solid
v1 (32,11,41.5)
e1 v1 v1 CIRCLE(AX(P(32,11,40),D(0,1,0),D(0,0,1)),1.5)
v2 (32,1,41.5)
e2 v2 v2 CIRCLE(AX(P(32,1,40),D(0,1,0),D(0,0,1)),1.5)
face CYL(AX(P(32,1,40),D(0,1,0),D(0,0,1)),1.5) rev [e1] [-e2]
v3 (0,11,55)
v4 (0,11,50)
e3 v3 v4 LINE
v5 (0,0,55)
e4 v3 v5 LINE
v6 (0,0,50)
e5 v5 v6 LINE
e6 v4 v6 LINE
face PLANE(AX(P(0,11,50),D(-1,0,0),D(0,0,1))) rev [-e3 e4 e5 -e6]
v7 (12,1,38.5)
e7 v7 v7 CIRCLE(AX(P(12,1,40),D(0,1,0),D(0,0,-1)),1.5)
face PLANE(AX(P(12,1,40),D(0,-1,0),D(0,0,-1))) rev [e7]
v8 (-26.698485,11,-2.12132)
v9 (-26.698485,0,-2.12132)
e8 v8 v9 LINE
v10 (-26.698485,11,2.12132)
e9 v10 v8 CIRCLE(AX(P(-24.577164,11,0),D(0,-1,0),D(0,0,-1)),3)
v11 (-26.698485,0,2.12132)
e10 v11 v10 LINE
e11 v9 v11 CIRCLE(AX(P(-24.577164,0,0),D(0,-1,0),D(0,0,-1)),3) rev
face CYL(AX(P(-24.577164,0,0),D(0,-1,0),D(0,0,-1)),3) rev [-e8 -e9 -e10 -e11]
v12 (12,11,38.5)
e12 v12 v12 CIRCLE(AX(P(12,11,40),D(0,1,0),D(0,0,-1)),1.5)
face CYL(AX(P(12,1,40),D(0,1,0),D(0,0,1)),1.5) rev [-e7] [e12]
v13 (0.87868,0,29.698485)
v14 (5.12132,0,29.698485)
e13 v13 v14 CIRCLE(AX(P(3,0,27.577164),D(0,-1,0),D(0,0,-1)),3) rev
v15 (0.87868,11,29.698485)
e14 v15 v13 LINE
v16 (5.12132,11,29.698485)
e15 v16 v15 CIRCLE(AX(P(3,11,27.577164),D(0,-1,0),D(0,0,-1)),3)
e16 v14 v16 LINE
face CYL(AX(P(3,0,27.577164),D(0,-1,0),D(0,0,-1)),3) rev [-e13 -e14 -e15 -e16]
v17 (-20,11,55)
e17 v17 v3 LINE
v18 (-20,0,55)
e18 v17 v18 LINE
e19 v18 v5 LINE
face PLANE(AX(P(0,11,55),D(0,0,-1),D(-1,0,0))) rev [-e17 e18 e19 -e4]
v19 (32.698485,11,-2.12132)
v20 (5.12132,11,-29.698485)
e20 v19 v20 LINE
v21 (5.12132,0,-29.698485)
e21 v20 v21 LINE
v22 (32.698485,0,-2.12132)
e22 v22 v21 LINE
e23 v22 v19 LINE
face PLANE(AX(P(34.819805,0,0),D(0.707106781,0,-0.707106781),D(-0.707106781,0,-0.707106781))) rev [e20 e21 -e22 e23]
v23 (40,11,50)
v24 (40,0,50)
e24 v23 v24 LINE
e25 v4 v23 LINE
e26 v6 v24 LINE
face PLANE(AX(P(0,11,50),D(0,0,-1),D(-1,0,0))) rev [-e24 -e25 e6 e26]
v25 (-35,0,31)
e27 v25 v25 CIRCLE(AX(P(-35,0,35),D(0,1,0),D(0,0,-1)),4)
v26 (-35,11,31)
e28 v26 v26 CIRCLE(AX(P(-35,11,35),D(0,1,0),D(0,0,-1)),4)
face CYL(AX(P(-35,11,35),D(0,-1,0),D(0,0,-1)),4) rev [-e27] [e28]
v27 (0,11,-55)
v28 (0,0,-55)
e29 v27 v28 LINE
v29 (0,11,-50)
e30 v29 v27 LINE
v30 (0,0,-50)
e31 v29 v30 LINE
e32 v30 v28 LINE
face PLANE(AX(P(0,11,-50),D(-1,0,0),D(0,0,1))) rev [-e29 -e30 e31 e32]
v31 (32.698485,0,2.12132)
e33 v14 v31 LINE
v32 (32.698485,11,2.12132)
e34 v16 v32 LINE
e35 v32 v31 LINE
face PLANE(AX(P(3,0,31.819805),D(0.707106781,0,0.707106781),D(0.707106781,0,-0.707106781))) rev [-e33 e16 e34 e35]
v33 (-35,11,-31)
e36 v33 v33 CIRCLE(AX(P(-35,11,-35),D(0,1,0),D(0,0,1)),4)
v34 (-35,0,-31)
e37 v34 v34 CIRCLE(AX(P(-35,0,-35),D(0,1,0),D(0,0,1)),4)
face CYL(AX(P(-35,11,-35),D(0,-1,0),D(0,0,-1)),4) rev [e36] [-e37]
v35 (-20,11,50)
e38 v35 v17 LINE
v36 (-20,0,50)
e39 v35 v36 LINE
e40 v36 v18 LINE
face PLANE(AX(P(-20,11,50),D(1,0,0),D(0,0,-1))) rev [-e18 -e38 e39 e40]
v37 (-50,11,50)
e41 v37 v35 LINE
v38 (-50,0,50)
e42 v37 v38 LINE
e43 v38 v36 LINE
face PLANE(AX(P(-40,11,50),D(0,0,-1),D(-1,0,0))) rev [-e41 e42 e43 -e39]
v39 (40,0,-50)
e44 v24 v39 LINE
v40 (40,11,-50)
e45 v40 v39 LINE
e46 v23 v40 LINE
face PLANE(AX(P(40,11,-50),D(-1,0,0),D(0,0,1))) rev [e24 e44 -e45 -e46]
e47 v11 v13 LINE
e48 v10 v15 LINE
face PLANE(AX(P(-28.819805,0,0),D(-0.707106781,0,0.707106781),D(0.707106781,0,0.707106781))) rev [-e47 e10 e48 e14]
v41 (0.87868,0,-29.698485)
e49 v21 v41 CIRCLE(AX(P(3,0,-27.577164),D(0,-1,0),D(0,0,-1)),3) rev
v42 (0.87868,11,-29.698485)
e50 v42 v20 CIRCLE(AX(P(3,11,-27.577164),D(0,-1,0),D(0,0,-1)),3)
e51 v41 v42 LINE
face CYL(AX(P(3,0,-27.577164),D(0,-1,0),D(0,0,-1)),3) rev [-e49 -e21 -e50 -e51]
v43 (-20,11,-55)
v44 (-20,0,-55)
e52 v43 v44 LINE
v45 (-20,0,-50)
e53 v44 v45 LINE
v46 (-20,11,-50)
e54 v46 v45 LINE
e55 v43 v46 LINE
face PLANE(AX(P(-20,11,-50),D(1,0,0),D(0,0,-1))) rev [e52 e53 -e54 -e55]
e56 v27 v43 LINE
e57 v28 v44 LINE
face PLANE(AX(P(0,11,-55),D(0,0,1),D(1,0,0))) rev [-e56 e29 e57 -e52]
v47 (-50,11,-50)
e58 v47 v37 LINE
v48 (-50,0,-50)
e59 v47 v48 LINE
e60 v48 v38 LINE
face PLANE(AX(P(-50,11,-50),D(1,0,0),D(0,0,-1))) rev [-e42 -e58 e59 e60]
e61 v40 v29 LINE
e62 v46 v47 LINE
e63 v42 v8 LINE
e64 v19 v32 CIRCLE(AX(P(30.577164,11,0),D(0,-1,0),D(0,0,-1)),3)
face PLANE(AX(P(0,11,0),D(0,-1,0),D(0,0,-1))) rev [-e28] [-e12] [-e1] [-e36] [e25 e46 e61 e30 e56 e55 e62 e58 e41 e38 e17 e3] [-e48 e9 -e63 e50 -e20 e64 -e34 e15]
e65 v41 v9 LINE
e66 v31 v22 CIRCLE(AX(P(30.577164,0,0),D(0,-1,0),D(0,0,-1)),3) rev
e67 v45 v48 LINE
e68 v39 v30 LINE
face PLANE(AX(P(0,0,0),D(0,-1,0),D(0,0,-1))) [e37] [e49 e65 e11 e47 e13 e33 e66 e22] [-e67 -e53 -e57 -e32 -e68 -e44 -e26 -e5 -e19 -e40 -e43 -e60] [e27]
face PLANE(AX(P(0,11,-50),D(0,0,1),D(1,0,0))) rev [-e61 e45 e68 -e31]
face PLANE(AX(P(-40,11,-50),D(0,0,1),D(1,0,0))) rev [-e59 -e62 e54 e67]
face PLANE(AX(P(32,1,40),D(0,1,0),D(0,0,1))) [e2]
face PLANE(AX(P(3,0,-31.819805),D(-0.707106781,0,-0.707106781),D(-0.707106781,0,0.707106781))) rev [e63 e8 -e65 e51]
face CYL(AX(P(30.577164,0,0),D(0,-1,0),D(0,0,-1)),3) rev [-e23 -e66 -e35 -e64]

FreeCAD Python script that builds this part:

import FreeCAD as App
import Part
import Sketcher


def edges_at(feature, points):
    """Names of the edges that pass closest to the given points."""
    edges = feature.Shape.Edges
    near = lambda p: min(range(len(edges)), key=lambda i: edges[i].distToShape(Part.Vertex(*p))[0])
    return sorted({f"Edge{near(p) + 1}" for p in points})

doc = App.newDocument("Part")
params = doc.addObject("Spreadsheet::Sheet", "Params")
for row, (alias, value) in enumerate([
    ("sketch1_diameter", "8 mm"),
    ("sketch1_width", "40 mm"),
    ("sketch1_width2", "20 mm"),
    ("sketch1_width3", "30 mm"),
    ("sketch1_height", "5 mm"),
    ("pad1_length", "11 mm"),
    ("sketch2_diameter", "3 mm"),
    ("pocket1_length", "10 mm"),
    ("sketch3_length", "45 mm"),
    ("pocket2_length", "11 mm"),
    ("fillet_radius", "3 mm"),
], start=1):
    params.set(f"A{row}", alias)
    params.set(f"B{row}", "=" + value)
    params.setAlias(f"B{row}", alias)

body = doc.addObject("PartDesign::Body", "Body")

sketch1 = body.newObject("Sketcher::SketchObject", "Sketch")
sketch1.AttachmentSupport = (doc.getObject("XZ_Plane"), [""])
sketch1.MapMode = "FlatFace"
sketch1.addGeometry(Part.LineSegment(App.Vector(40, -50, 0), App.Vector(0, -50, 0)), False)
sketch1.addGeometry(Part.LineSegment(App.Vector(0, -50, 0), App.Vector(0, -55, 0)), False)
sketch1.addGeometry(Part.LineSegment(App.Vector(0, -55, 0), App.Vector(-20, -55, 0)), False)
sketch1.addGeometry(Part.LineSegment(App.Vector(-20, -55, 0), App.Vector(-20, -50, 0)), False)
sketch1.addGeometry(Part.LineSegment(App.Vector(-20, -50, 0), App.Vector(-50, -50, 0)), False)
sketch1.addGeometry(Part.LineSegment(App.Vector(-50, -50, 0), App.Vector(-50, 50, 0)), False)
sketch1.addGeometry(Part.LineSegment(App.Vector(-50, 50, 0), App.Vector(-20, 50, 0)), False)
sketch1.addGeometry(Part.LineSegment(App.Vector(-20, 50, 0), App.Vector(-20, 55, 0)), False)
sketch1.addGeometry(Part.LineSegment(App.Vector(-20, 55, 0), App.Vector(0, 55, 0)), False)
sketch1.addGeometry(Part.LineSegment(App.Vector(0, 55, 0), App.Vector(0, 50, 0)), False)
sketch1.addGeometry(Part.LineSegment(App.Vector(0, 50, 0), App.Vector(40, 50, 0)), False)
sketch1.addGeometry(Part.LineSegment(App.Vector(40, 50, 0), App.Vector(40, -50, 0)), False)
sketch1.addGeometry(Part.Circle(App.Vector(-35, 35, 0), App.Vector(0, 0, 1), 4), False)
sketch1.addGeometry(Part.Circle(App.Vector(-35, -35, 0), App.Vector(0, 0, 1), 4), False)
sketch1.addConstraint(Sketcher.Constraint("Coincident", 0, 2, 1, 1))
sketch1.addConstraint(Sketcher.Constraint("Coincident", 1, 2, 2, 1))
sketch1.addConstraint(Sketcher.Constraint("Coincident", 2, 2, 3, 1))
sketch1.addConstraint(Sketcher.Constraint("Coincident", 3, 2, 4, 1))
sketch1.addConstraint(Sketcher.Constraint("Coincident", 4, 2, 5, 1))
sketch1.addConstraint(Sketcher.Constraint("Coincident", 5, 2, 6, 1))
sketch1.addConstraint(Sketcher.Constraint("Coincident", 6, 2, 7, 1))
sketch1.addConstraint(Sketcher.Constraint("Coincident", 7, 2, 8, 1))
sketch1.addConstraint(Sketcher.Constraint("Coincident", 8, 2, 9, 1))
sketch1.addConstraint(Sketcher.Constraint("Coincident", 9, 2, 10, 1))
sketch1.addConstraint(Sketcher.Constraint("Coincident", 10, 2, 11, 1))
sketch1.addConstraint(Sketcher.Constraint("Coincident", 11, 2, 0, 1))
sketch1.addConstraint(Sketcher.Constraint("Horizontal", 0))
sketch1.addConstraint(Sketcher.Constraint("Vertical", 1))
sketch1.addConstraint(Sketcher.Constraint("Horizontal", 2))
sketch1.addConstraint(Sketcher.Constraint("Vertical", 3))
sketch1.addConstraint(Sketcher.Constraint("Horizontal", 4))
sketch1.addConstraint(Sketcher.Constraint("Vertical", 5))
sketch1.addConstraint(Sketcher.Constraint("Horizontal", 6))
sketch1.addConstraint(Sketcher.Constraint("Vertical", 7))
sketch1.addConstraint(Sketcher.Constraint("Horizontal", 8))
sketch1.addConstraint(Sketcher.Constraint("Vertical", 9))
sketch1.addConstraint(Sketcher.Constraint("Horizontal", 10))
sketch1.addConstraint(Sketcher.Constraint("Vertical", 11))
sketch1.addConstraint(Sketcher.Constraint("Equal", 12, 13))
sketch1.addConstraint(Sketcher.Constraint("Symmetric", 1, 2, 8, 2, -1, 1))
sketch1.addConstraint(Sketcher.Constraint("Symmetric", 12, 3, 13, 3, -1))
sketch1.addConstraint(Sketcher.Constraint("Symmetric", 3, 2, 6, 2, -1))
sketch1.addConstraint(Sketcher.Constraint("Symmetric", 0, 2, 9, 2, -1))
sketch1.addConstraint(Sketcher.Constraint("Horizontal", 0, 2, 3, 2))
sketch1.addConstraint(Sketcher.Constraint("Diameter", 12, 8.0))
sketch1.addConstraint(Sketcher.Constraint("DistanceX", 0, 2, 0, 1, 40.0))
sketch1.addConstraint(Sketcher.Constraint("DistanceX", 2, 2, 2, 1, 20.0))
sketch1.addConstraint(Sketcher.Constraint("DistanceX", 4, 2, 4, 1, 30.0))
sketch1.addConstraint(Sketcher.Constraint("DistanceY", 1, 2, 1, 1, 5.0))
sketch1.addConstraint(Sketcher.Constraint("DistanceY", 5, 1, 5, 2, 100.0))
sketch1.addConstraint(Sketcher.Constraint("DistanceX", 12, 3, -1, 1, 35.0))
sketch1.addConstraint(Sketcher.Constraint("DistanceY", -1, 1, 12, 3, 35.0))
sketch1.setExpression("Constraints[30]", "Params.sketch1_diameter")
sketch1.setExpression("Constraints[31]", "Params.sketch1_width")
sketch1.setExpression("Constraints[32]", "Params.sketch1_width2")
sketch1.setExpression("Constraints[33]", "Params.sketch1_width3")
sketch1.setExpression("Constraints[34]", "Params.sketch1_height")
pad1 = body.newObject("PartDesign::Pad", "Pad")
pad1.Profile = sketch1
pad1.setExpression("Length", "Params.pad1_length")
pad1.Reversed = True

sketch2 = body.newObject("Sketcher::SketchObject", "Sketch001")
sketch2.AttachmentSupport = (doc.getObject("XZ_Plane"), [""])
sketch2.MapMode = "FlatFace"
sketch2.AttachmentOffset = App.Placement(App.Vector(0, 0, -11), App.Rotation())
sketch2.addGeometry(Part.Circle(App.Vector(32, 40, 0), App.Vector(0, 0, 1), 1.5), False)
sketch2.addGeometry(Part.Circle(App.Vector(12, 40, 0), App.Vector(0, 0, 1), 1.5), False)
sketch2.addConstraint(Sketcher.Constraint("Equal", 0, 1))
sketch2.addConstraint(Sketcher.Constraint("Horizontal", 0, 3, 1, 3))
sketch2.addConstraint(Sketcher.Constraint("Diameter", 0, 3.0))
sketch2.addConstraint(Sketcher.Constraint("DistanceX", -1, 1, 0, 3, 32.0))
sketch2.addConstraint(Sketcher.Constraint("DistanceY", -1, 1, 0, 3, 40.0))
sketch2.addConstraint(Sketcher.Constraint("DistanceX", -1, 1, 1, 3, 12.0))
sketch2.setExpression("Constraints[2]", "Params.sketch2_diameter")
pocket1 = body.newObject("PartDesign::Pocket", "Pocket")
pocket1.Profile = sketch2
pocket1.setExpression("Length", "Params.pocket1_length")
pocket1.Reversed = True

sketch3 = body.newObject("Sketcher::SketchObject", "Sketch002")
sketch3.AttachmentSupport = (doc.getObject("XZ_Plane"), [""])
sketch3.MapMode = "FlatFace"
sketch3.AttachmentOffset = App.Placement(App.Vector(0, 0, -11), App.Rotation())
sketch3.addGeometry(Part.LineSegment(App.Vector(-29, 0, 0), App.Vector(3, 32, 0)), False)
sketch3.addGeometry(Part.LineSegment(App.Vector(3, 32, 0), App.Vector(35, 0, 0)), False)
sketch3.addGeometry(Part.LineSegment(App.Vector(35, 0, 0), App.Vector(3, -32, 0)), False)
sketch3.addGeometry(Part.LineSegment(App.Vector(3, -32, 0), App.Vector(-29, 0, 0)), False)
sketch3.addConstraint(Sketcher.Constraint("Coincident", 0, 2, 1, 1))
sketch3.addConstraint(Sketcher.Constraint("Coincident", 1, 2, 2, 1))
sketch3.addConstraint(Sketcher.Constraint("Coincident", 2, 2, 3, 1))
sketch3.addConstraint(Sketcher.Constraint("Coincident", 3, 2, 0, 1))
sketch3.addConstraint(Sketcher.Constraint("Symmetric", 0, 2, 2, 2, -1))
sketch3.addConstraint(Sketcher.Constraint("PointOnObject", 1, 2, -1))
sketch3.addConstraint(Sketcher.Constraint("PointOnObject", 3, 2, -1))
sketch3.addConstraint(Sketcher.Constraint("Perpendicular", 0, 1))
sketch3.addConstraint(Sketcher.Constraint("Perpendicular", 1, 2))
sketch3.addConstraint(Sketcher.Constraint("Distance", 0, 45.0))
sketch3.addConstraint(Sketcher.Constraint("DistanceX", -1, 1, 0, 2, 3.0))
sketch3.setExpression("Constraints[9]", "Params.sketch3_length")
pocket2 = body.newObject("PartDesign::Pocket", "Pocket001")
pocket2.Profile = sketch3
pocket2.setExpression("Length", "Params.pocket2_length")
pocket2.Reversed = True
doc.recompute()

fillet = body.newObject("PartDesign::Fillet", "Fillet")
fillet.Base = (pocket2, edges_at(pocket2, [
    (-28.82, 5.5, 0),
    (3, 5.5, -31.82),
    (34.82, 5.5, 0),
    (3, 5.5, 31.82),
]))
fillet.setExpression("Radius", "Params.fillet_radius")

doc.recompute()
